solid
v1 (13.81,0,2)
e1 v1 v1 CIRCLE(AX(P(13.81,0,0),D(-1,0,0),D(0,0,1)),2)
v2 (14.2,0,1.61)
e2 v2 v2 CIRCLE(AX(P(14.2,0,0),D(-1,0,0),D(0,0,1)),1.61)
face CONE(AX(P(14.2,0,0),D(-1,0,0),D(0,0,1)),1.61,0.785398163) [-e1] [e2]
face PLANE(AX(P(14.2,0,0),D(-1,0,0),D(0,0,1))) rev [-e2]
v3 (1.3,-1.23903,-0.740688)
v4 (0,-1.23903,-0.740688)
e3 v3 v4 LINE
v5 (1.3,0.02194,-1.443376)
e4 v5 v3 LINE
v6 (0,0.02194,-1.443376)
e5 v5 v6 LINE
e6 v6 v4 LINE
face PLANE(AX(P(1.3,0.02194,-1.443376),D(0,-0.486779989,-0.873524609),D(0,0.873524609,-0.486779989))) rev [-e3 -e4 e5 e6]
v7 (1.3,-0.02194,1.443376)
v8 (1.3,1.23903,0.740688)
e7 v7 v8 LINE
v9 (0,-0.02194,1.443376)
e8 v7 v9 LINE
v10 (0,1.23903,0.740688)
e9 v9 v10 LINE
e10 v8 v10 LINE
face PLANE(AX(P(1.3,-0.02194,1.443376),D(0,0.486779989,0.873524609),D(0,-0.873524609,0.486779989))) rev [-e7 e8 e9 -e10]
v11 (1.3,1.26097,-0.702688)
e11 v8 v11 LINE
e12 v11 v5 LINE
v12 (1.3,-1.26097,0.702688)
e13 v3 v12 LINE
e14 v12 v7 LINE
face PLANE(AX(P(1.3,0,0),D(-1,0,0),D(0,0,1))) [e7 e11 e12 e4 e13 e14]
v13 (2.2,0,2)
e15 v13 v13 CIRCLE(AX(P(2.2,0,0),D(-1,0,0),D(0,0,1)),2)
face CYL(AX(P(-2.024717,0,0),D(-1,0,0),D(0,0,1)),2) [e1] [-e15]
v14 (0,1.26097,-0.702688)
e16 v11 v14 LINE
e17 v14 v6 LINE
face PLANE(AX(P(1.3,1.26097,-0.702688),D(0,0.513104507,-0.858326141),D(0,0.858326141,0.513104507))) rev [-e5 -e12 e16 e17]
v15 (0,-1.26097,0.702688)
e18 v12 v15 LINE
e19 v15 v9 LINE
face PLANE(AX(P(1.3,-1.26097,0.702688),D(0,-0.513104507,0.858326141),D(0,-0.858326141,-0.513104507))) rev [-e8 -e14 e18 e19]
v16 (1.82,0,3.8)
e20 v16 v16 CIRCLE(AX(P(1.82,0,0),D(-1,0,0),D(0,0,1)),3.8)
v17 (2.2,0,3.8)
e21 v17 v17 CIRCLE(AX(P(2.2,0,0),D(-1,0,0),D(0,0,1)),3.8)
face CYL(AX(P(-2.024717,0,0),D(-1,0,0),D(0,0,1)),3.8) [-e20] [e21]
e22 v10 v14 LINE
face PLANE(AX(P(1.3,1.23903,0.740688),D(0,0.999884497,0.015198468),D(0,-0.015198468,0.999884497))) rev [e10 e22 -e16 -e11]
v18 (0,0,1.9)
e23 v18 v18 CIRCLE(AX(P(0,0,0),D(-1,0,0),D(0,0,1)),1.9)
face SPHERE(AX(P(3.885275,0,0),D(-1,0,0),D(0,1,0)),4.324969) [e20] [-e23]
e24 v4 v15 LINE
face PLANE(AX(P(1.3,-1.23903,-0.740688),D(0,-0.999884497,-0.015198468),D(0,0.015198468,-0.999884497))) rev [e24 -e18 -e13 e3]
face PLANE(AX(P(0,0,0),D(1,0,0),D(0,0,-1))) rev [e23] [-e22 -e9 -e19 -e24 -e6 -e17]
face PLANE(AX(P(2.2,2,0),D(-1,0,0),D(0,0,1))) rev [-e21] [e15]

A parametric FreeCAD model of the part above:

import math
import FreeCAD as App
import Part
import Sketcher
from FreeCAD import Vector
Q = App.Units.Quantity


def add_polygon(sketch, points):
    """Adds a closed chain of lines whose ends are joined by coincident constraints."""
    first, n = sketch.GeometryCount, len(points)
    for a, b in zip(points, points[1:] + points[:1]):
        sketch.addGeometry(Part.LineSegment(App.Vector(*a, 0), App.Vector(*b, 0)), False)
    for i in range(n):
        sketch.addConstraint(Sketcher.Constraint("Coincident", first + i, 2, first + (i + 1) % n, 1))

doc = App.newDocument("Part")
body = doc.addObject("PartDesign::Body", "Body")

sketch1 = doc.addObject("Sketcher::SketchObject", "Sketch")
body.addObject(sketch1)
sketch1.AttachmentSupport = (doc.XY_Plane, [""])
sketch1.MapMode = "FlatFace"
sketch1.addGeometry([
    Part.LineSegment(Vector(14.2, 0, 0), Vector(14.2, 1.61, 0)),
    Part.LineSegment(Vector(14.2, 1.61, 0), Vector(13.81, 2, 0)),
    Part.LineSegment(Vector(13.81, 2, 0), Vector(2.2, 2, 0)),
    Part.LineSegment(Vector(2.2, 2, 0), Vector(2.2, 3.8, 0)),
    Part.LineSegment(Vector(2.2, 3.8, 0), Vector(1.82, 3.8, 0)),
    Part.ArcOfCircle(Part.Circle(Vector(3.89, 0, 0), Vector(0, 0, 1), 4.32), math.radians(119), math.radians(154)),
    Part.LineSegment(Vector(0, 1.9, 0), Vector(0, 0, 0)),
    Part.LineSegment(Vector(0, 0, 0), Vector(14.2, 0, 0)),
], False)
sketch1.addConstraint([
    Sketcher.Constraint("Coincident", 0, 2, 1, 1),
    Sketcher.Constraint("Coincident", 1, 2, 2, 1),
    Sketcher.Constraint("Coincident", 2, 2, 3, 1),
    Sketcher.Constraint("Coincident", 3, 2, 4, 1),
    Sketcher.Constraint("Coincident", 4, 2, 5, 1),
    Sketcher.Constraint("Coincident", 5, 2, 6, 1),
    Sketcher.Constraint("Coincident", 6, 2, 7, 1),
    Sketcher.Constraint("Coincident", 7, 2, 0, 1),
    Sketcher.Constraint("Vertical", 0),
    Sketcher.Constraint("Horizontal", 2),
    Sketcher.Constraint("Vertical", 3),
    Sketcher.Constraint("Horizontal", 4),
    Sketcher.Constraint("Vertical", 6),
    Sketcher.Constraint("Horizontal", 7),
    Sketcher.Constraint("Coincident", 6, 2, -1, 1),
    Sketcher.Constraint("PointOnObject", 5, 3, -1),
    Sketcher.Constraint("Angle", 1, Q("135 deg")),
    Sketcher.Constraint("DistanceX", 7, 1, 7, 2, 14.2),
    Sketcher.Constraint("DistanceY", 3, 1, 3, 2, 1.8),
    Sketcher.Constraint("DistanceY", 6, 2, 6, 1, 1.9),
    Sketcher.Constraint("DistanceY", -1, 1, 1, 2, 2.0),
    Sketcher.Constraint("DistanceX", 2, 2, 0, 2, 12.0),
    Sketcher.Constraint("DistanceX", 2, 2, 2, 1, 11.61),
    Sketcher.Constraint("DistanceX", 4, 2, 4, 1, 0.38),
])
revolution = doc.addObject("PartDesign::Revolution", "Revolution")
body.addObject(revolution)
revolution.Profile = sketch1
revolution.ReferenceAxis = (sketch1, ["H_Axis"])
revolution.Angle = 360

sketch2 = doc.addObject("Sketcher::SketchObject", "Sketch001")
body.addObject(sketch2)
sketch2.AttachmentSupport = (doc.YZ_Plane, [""])
sketch2.MapMode = "FlatFace"
add_polygon(sketch2, [(-1.3, 0.7), (0, 1.4), (1.2, 0.7), (1.3, -0.7), (0, -1.4), (-1.2, -0.7)])
sketch2.addConstraint([
    Sketcher.Constraint("Symmetric", 0, 2, 3, 2, -1, 1),
    Sketcher.Constraint("Symmetric", 1, 2, 4, 2, -1, 1),
    Sketcher.Constraint("Symmetric", 2, 2, 5, 2, -1, 1),
    Sketcher.Constraint("Equal", 0, 1),
    Sketcher.Constraint("Equal", 1, 2),
    Sketcher.Constraint("DistanceX", 4, 2, 2, 2, 2.5),
    Sketcher.Constraint("DistanceY", 4, 2, 2, 2, 0.038001),
    Sketcher.Constraint("DistanceX", 0, 2, -1, 1, 0.02194),
    Sketcher.Constraint("DistanceX", -1, 1, 1, 2, 1.23903),
])
pocket1 = doc.addObject("PartDesign::Pocket", "Pocket")
body.addObject(pocket1)
pocket1.Profile = sketch2
pocket1.Length = 1.3
pocket1.Reversed = True

doc.recompute()
